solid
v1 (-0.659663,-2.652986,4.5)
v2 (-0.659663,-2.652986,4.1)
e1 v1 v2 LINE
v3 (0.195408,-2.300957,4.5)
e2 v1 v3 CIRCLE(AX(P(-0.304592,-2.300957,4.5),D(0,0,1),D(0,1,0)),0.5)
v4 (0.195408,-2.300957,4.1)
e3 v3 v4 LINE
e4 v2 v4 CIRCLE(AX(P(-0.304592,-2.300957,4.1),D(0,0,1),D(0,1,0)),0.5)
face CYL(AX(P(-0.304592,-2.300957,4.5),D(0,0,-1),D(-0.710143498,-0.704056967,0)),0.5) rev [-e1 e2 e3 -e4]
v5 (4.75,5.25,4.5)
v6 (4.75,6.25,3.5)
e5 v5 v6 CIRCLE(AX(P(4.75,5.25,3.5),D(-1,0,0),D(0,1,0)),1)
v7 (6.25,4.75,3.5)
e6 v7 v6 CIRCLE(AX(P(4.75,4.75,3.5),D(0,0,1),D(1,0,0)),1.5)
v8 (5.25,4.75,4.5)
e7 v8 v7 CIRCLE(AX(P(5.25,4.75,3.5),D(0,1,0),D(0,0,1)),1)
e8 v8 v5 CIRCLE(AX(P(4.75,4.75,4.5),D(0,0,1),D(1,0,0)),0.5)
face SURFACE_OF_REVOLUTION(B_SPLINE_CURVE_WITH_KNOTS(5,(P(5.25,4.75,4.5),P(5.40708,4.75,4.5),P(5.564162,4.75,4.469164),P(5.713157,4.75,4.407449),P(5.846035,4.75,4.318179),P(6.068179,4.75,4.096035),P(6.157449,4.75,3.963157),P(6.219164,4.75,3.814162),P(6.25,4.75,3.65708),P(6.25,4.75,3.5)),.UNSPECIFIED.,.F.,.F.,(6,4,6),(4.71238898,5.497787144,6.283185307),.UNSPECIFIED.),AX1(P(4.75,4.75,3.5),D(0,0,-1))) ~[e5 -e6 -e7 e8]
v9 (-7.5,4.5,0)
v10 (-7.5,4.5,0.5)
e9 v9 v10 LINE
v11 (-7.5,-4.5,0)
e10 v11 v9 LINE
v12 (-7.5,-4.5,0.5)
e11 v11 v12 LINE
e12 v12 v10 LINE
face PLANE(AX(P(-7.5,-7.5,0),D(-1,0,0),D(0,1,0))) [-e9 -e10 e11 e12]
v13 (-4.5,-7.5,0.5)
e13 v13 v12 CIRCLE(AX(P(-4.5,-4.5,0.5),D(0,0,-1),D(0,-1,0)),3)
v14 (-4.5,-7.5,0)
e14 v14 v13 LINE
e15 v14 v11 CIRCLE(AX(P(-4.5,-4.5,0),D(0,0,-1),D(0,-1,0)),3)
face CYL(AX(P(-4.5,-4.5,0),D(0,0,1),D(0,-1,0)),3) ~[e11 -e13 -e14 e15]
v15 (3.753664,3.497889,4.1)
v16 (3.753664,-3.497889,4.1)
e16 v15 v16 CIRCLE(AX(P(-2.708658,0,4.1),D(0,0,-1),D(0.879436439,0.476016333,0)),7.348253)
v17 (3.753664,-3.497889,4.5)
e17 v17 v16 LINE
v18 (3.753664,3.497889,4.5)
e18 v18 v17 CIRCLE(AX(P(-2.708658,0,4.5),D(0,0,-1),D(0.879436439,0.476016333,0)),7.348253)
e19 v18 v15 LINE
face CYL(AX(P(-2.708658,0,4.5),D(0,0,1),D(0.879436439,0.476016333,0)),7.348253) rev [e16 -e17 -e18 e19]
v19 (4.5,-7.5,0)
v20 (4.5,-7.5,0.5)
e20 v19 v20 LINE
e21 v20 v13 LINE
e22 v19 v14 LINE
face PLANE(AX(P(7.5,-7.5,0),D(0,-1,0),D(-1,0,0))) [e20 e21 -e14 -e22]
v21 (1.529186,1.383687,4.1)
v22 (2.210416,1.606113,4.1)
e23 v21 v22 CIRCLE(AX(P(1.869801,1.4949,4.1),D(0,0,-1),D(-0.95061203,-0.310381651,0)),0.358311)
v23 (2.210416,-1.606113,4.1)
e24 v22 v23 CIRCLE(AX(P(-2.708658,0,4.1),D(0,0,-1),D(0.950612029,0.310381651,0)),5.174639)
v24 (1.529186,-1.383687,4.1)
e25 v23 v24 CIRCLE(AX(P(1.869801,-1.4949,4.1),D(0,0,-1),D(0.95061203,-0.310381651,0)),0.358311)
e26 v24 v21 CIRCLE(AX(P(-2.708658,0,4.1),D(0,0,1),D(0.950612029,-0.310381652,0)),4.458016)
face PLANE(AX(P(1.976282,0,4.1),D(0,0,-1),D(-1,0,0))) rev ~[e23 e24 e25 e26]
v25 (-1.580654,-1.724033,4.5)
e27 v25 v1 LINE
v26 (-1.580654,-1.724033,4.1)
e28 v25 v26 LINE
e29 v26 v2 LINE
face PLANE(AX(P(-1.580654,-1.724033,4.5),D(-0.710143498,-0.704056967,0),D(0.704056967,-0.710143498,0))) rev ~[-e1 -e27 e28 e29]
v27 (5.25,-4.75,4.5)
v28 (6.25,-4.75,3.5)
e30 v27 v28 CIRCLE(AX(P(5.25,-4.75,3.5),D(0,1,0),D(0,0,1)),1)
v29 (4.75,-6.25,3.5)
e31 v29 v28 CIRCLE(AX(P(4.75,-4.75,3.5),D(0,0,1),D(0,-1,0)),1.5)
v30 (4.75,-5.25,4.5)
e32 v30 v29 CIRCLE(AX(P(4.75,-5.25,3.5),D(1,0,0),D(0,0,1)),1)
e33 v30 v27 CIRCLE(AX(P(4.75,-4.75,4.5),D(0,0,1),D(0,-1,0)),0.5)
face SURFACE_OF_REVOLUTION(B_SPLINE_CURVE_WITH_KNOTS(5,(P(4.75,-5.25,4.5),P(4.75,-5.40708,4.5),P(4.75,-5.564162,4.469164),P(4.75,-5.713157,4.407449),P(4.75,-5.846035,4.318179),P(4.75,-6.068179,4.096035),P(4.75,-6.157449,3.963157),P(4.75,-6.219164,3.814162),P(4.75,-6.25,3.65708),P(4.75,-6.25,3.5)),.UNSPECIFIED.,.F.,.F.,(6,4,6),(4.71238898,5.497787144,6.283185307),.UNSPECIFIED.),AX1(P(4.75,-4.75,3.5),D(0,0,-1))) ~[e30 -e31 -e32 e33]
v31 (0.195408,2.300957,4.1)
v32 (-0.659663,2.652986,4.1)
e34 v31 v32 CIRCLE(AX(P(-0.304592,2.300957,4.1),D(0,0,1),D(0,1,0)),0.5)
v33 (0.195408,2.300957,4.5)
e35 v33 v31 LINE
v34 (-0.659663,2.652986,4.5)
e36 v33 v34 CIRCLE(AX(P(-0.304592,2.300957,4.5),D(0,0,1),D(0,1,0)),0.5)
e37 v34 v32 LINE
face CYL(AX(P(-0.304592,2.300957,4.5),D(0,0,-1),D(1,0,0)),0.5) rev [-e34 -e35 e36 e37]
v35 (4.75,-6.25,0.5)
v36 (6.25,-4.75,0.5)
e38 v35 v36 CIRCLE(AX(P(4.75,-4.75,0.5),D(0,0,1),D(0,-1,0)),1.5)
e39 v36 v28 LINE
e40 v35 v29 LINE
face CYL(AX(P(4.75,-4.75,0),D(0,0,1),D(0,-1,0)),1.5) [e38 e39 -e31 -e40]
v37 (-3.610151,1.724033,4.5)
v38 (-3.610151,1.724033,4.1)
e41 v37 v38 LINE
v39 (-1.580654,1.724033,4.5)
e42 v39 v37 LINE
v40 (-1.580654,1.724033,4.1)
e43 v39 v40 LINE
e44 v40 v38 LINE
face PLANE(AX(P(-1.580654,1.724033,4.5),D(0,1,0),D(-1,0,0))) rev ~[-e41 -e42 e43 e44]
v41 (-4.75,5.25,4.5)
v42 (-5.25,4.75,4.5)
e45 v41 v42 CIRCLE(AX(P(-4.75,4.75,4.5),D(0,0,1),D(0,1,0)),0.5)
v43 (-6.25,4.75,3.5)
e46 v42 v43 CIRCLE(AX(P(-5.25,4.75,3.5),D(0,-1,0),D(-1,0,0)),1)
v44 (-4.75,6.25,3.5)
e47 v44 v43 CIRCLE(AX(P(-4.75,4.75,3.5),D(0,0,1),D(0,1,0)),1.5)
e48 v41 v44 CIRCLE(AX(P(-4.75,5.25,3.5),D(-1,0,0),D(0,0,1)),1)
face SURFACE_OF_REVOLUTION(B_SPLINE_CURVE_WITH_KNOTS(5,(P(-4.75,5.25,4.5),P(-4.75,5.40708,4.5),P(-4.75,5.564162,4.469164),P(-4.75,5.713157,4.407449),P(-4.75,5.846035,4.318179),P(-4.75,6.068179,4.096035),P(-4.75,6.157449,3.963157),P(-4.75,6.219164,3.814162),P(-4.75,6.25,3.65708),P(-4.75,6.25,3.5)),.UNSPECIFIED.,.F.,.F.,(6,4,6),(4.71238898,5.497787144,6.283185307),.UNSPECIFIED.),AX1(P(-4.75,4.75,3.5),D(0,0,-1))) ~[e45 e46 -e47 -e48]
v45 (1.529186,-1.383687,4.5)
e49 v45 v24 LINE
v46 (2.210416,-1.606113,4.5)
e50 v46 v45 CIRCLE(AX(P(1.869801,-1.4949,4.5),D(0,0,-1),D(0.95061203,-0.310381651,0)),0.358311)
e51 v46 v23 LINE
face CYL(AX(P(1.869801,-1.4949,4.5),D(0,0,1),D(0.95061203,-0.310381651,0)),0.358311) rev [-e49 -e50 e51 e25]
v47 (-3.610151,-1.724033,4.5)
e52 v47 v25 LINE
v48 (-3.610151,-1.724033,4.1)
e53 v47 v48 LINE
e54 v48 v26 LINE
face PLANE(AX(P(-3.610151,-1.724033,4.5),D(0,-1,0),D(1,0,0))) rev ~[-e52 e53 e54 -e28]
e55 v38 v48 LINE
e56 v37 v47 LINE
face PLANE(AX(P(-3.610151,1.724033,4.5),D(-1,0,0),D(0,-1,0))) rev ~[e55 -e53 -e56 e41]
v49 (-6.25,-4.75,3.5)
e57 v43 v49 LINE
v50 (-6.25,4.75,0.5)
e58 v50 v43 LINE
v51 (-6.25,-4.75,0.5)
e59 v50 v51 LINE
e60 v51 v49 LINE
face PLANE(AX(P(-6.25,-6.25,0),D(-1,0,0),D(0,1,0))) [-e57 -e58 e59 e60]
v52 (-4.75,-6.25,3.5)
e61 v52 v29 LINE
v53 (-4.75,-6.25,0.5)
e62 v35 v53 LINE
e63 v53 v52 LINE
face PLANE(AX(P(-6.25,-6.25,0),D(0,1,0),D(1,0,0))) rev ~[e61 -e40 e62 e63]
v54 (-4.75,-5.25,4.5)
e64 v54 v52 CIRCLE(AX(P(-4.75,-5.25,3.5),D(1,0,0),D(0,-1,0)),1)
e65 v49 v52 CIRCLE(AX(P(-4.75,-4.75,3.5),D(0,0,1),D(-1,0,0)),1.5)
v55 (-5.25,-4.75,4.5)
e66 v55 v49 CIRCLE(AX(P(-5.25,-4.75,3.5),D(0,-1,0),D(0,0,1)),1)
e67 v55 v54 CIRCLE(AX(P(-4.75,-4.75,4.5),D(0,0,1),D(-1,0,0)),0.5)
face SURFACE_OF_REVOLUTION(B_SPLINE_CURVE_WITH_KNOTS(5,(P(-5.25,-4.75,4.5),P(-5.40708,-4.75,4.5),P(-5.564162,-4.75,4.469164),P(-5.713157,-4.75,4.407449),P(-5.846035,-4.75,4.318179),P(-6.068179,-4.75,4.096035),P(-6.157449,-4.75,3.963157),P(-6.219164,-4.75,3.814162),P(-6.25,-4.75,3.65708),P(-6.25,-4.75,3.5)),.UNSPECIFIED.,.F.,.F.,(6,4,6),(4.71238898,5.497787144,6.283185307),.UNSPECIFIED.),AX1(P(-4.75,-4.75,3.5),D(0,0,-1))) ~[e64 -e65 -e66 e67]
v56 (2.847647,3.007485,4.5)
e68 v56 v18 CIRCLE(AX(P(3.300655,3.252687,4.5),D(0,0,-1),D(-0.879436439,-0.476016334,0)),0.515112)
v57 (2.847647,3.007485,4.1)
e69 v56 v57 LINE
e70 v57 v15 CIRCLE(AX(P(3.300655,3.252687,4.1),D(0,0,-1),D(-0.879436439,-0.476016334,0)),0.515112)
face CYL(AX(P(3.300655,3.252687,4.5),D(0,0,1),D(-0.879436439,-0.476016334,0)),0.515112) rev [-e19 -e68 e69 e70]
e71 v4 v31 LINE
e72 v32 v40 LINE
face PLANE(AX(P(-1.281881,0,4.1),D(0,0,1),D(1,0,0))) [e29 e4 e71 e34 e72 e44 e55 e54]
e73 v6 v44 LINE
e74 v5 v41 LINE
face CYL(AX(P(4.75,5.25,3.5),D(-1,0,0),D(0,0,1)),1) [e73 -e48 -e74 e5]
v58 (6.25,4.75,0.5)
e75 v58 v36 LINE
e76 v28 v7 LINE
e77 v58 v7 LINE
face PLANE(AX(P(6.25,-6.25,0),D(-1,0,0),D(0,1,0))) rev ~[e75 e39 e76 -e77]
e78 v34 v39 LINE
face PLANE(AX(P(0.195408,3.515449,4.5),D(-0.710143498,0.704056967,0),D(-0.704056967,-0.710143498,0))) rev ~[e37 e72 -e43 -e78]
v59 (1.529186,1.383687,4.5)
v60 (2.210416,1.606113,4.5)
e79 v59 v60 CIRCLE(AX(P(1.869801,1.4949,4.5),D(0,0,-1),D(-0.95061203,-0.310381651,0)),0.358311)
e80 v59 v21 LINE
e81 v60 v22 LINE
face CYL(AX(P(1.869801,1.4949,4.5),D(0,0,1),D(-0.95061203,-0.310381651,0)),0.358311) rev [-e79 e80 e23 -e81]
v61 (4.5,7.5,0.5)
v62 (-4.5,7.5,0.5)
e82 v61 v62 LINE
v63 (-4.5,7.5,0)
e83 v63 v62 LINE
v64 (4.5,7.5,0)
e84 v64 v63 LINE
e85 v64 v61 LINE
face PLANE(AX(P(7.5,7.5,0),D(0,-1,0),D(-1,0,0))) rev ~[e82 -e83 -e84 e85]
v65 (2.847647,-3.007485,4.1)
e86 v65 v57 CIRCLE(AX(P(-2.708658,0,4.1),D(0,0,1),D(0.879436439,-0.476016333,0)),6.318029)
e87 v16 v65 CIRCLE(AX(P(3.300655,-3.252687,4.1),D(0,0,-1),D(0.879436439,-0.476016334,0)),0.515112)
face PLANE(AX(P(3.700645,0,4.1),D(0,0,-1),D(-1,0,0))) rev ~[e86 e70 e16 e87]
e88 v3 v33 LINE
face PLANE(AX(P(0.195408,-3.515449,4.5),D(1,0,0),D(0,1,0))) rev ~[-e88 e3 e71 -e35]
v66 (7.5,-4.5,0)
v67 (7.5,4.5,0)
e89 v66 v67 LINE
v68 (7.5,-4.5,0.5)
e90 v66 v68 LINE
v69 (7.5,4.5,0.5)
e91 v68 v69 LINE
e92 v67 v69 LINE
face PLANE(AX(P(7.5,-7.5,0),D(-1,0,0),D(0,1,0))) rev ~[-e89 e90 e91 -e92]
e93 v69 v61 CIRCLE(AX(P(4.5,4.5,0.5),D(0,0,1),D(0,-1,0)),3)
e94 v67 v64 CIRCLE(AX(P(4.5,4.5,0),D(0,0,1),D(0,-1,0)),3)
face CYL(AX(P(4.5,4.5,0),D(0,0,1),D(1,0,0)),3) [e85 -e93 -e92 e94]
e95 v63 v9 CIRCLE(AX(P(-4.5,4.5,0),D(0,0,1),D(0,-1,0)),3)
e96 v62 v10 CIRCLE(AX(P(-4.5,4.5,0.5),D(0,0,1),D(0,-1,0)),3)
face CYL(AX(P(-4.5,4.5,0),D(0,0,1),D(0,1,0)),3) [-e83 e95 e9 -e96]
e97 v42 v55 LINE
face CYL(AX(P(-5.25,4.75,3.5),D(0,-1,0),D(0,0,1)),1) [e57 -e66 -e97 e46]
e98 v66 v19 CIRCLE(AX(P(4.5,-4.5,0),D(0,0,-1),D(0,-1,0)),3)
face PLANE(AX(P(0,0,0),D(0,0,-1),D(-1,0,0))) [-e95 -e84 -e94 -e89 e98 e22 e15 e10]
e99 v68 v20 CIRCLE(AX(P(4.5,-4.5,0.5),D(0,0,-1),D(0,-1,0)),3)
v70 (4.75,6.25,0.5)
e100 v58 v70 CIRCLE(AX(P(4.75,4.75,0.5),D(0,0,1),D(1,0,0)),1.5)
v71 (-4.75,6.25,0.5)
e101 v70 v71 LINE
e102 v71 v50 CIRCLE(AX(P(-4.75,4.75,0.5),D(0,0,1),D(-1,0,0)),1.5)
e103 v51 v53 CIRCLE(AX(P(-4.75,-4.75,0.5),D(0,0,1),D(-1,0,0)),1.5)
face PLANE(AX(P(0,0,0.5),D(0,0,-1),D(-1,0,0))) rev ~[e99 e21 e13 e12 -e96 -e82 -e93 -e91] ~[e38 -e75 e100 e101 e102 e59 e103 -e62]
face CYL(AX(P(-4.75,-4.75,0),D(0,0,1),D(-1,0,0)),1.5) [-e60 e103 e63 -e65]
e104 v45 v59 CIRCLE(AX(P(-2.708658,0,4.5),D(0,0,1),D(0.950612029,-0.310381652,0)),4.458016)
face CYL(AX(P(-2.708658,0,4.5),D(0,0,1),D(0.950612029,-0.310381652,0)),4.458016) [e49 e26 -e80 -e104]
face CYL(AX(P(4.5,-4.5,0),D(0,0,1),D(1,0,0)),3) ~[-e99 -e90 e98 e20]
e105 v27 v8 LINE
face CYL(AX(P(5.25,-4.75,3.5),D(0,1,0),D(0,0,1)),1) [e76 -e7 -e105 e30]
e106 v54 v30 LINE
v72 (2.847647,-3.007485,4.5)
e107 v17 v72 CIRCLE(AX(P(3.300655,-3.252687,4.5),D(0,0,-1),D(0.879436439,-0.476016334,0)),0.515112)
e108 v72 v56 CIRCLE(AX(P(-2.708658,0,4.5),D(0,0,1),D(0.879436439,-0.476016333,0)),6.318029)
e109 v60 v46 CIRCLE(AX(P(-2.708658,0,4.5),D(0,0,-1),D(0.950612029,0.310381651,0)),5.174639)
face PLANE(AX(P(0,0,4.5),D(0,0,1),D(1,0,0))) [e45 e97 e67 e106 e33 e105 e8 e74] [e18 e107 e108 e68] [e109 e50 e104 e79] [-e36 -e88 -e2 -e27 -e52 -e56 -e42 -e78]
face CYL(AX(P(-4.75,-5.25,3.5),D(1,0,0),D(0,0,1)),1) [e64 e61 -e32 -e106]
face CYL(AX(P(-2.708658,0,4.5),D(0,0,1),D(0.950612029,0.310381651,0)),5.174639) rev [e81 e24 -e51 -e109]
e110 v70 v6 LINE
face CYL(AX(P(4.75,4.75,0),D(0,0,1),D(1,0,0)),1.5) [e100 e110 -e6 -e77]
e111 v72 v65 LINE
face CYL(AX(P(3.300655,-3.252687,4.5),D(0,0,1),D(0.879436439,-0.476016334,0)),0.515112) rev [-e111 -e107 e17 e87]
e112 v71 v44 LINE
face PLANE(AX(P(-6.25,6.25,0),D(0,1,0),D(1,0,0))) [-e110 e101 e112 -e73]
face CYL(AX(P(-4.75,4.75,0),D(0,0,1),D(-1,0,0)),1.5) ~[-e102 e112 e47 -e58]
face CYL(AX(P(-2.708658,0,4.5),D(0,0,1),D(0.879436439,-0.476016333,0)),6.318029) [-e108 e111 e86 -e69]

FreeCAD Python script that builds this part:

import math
import FreeCAD as App
import Part
import Sketcher

V = App.Vector
Q = App.Units.Quantity


def edges_at(feature, points):
    """Names of the edges that pass closest to the given points."""
    edges = feature.Shape.Edges
    near = lambda p: min(range(len(edges)), key=lambda i: edges[i].distToShape(Part.Vertex(*p))[0])
    return sorted({f"Edge{near(p) + 1}" for p in points})


def add_polygon(sketch, points):
    """Adds a closed chain of lines whose ends are joined by coincident constraints."""
    first, n = sketch.GeometryCount, len(points)
    for a, b in zip(points, points[1:] + points[:1]):
        sketch.addGeometry(Part.LineSegment(App.Vector(*a, 0), App.Vector(*b, 0)), False)
    for i in range(n):
        sketch.addConstraint(Sketcher.Constraint("Coincident", first + i, 2, first + (i + 1) % n, 1))

doc = App.newDocument("Part")
body = doc.addObject("PartDesign::Body", "Body")

# Sketch on XY plane
sketch1 = body.newObject("Sketcher::SketchObject", "Sketch")
sketch1.AttachmentSupport = (doc.getObject("XY_Plane"), [""])
sketch1.MapMode = "FlatFace"
add_polygon(sketch1, [(-6.25, 6.25), (-6.25, -6.25), (6.25, -6.25), (6.25, 6.25)])  # lines 0-3
sketch1.addConstraint(Sketcher.Constraint("Vertical", 0))
sketch1.addConstraint(Sketcher.Constraint("Horizontal", 1))
sketch1.addConstraint(Sketcher.Constraint("Vertical", 2))
sketch1.addConstraint(Sketcher.Constraint("Horizontal", 3))
sketch1.addConstraint(Sketcher.Constraint("Symmetric", 0, 2, 2, 2, -1, 1))
sketch1.addConstraint(Sketcher.Constraint("Equal", 3, 0))
sketch1.addConstraint(Sketcher.Constraint("DistanceX", 1, 1, 1, 2, Q("12.5 mm")))
pad1 = body.newObject("PartDesign::Pad", "Pad")
pad1.Profile = sketch1
pad1.Length = 4.5
doc.recompute()

fillet = body.newObject("PartDesign::Fillet", "Fillet")
fillet.Base = (pad1, edges_at(pad1, [
    (-6.25, 6.25, 2.25),
    (6.25, 6.25, 2.25),
    (6.25, -6.25, 2.25),
    (-6.25, -6.25, 2.25),
]))
fillet.Radius = 1.5
doc.recompute()

fillet2 = body.newObject("PartDesign::Fillet", "Fillet001")
fillet2.Base = (fillet, edges_at(fillet, [
    (6.25, 0, 4.5),
    (0, -6.25, 4.5),
    (-6.25, 0, 4.5),
    (0, 6.25, 4.5),
    (-5.811, -5.811, 4.5),
    (-5.811, 5.811, 4.5),
    (5.811, 5.811, 4.5),
    (5.811, -5.811, 4.5),
]))
fillet2.Radius = 1

# Sketch on XY plane
sketch2 = body.newObject("Sketcher::SketchObject", "Sketch001")
sketch2.AttachmentSupport = (doc.getObject("XY_Plane"), [""])
sketch2.MapMode = "FlatFace"
add_polygon(sketch2, [(7.5, 7.5), (7.5, -7.5), (-7.5, -7.5), (-7.5, 7.5)])  # lines 0-3
sketch2.addConstraint(Sketcher.Constraint("Vertical", 0))
sketch2.addConstraint(Sketcher.Constraint("Horizontal", 1))
sketch2.addConstraint(Sketcher.Constraint("Vertical", 2))
sketch2.addConstraint(Sketcher.Constraint("Horizontal", 3))
sketch2.addConstraint(Sketcher.Constraint("Symmetric", 0, 2, 2, 2, -1, 1))
sketch2.addConstraint(Sketcher.Constraint("Equal", 3, 0))
sketch2.addConstraint(Sketcher.Constraint("DistanceX", 1, 2, 1, 1, Q("15 mm")))
pad2 = body.newObject("PartDesign::Pad", "Pad001")
pad2.Profile = sketch2
pad2.Length = 0.5
doc.recompute()

fillet3 = body.newObject("PartDesign::Fillet", "Fillet002")
fillet3.Base = (pad2, edges_at(pad2, [
    (7.5, -7.5, 0.25),
    (7.5, 7.5, 0.25),
    (-7.5, 7.5, 0.25),
    (-7.5, -7.5, 0.25),
]))
fillet3.Radius = 3

# Sketch on XY plane
sketch3 = body.newObject("Sketcher::SketchObject", "Sketch002")
sketch3.AttachmentSupport = (doc.getObject("XY_Plane"), [""])
sketch3.MapMode = "FlatFace"
sketch3.AttachmentOffset = App.Placement(V(0, 0, 4.5), App.Rotation())
add_polygon(sketch3, [(-3.610151, 1.724033), (-3.610151, -1.724033), (-1.580654, -1.724033), (0.195408, -3.515449), (0.195408, 3.515449), (-1.580654, 1.724033)])  # lines 0-5
sketch3.addGeometry(Part.ArcOfCircle(Part.Circle(V(-2.708658, 0, 0), V(0, 0, 1), 4.458016), math.radians(-18.082232), math.radians(18.082232)), False)  # 6
sketch3.addGeometry(Part.ArcOfCircle(Part.Circle(V(1.869801, -1.4949, 0), V(0, 0, 1), 0.358311), math.radians(161.917768), math.radians(341.917768)), False)  # 7
sketch3.addGeometry(Part.ArcOfCircle(Part.Circle(V(-2.708658, 0, 0), V(0, 0, 1), 5.174639), math.radians(-18.082232), math.radians(18.082232)), False)  # 8
sketch3.addGeometry(Part.ArcOfCircle(Part.Circle(V(1.869801, 1.4949, 0), V(0, 0, 1), 0.358311), math.radians(18.082232), math.radians(198.082232)), False)  # 9
sketch3.addGeometry(Part.ArcOfCircle(Part.Circle(V(-2.708658, 0, 0), V(0, 0, 1), 6.318029), math.radians(-28.425544), math.radians(28.425544)), False)  # 10
sketch3.addGeometry(Part.ArcOfCircle(Part.Circle(V(3.300655, -3.252687, 0), V(0, 0, 1), 0.515112), math.radians(151.574456), math.radians(331.574456)), False)  # 11
sketch3.addGeometry(Part.ArcOfCircle(Part.Circle(V(-2.708658, 0, 0), V(0, 0, 1), 7.348253), math.radians(-28.425544), math.radians(28.425544)), False)  # 12
sketch3.addGeometry(Part.ArcOfCircle(Part.Circle(V(3.300655, 3.252687, 0), V(0, 0, 1), 0.515112), math.radians(28.425544), math.radians(208.425544)), False)  # 13
sketch3.addConstraint(Sketcher.Constraint("Tangent", 6, 1, 7, 1))
sketch3.addConstraint(Sketcher.Constraint("Tangent", 7, 2, 8, 1))
sketch3.addConstraint(Sketcher.Constraint("Tangent", 8, 2, 9, 1))
sketch3.addConstraint(Sketcher.Constraint("Tangent", 9, 2, 6, 2))
sketch3.addConstraint(Sketcher.Constraint("Tangent", 10, 1, 11, 1))
sketch3.addConstraint(Sketcher.Constraint("Tangent", 11, 2, 12, 1))
sketch3.addConstraint(Sketcher.Constraint("Tangent", 12, 2, 13, 1))
sketch3.addConstraint(Sketcher.Constraint("Tangent", 13, 2, 10, 2))
sketch3.addConstraint(Sketcher.Constraint("Vertical", 0))
sketch3.addConstraint(Sketcher.Constraint("Horizontal", 1))
sketch3.addConstraint(Sketcher.Constraint("Vertical", 3))
sketch3.addConstraint(Sketcher.Constraint("Horizontal", 5))
sketch3.addConstraint(Sketcher.Constraint("Coincident", 8, 3, 6, 3))
sketch3.addConstraint(Sketcher.Constraint("Coincident", 10, 3, 6, 3))
sketch3.addConstraint(Sketcher.Constraint("Coincident", 12, 3, 6, 3))
sketch3.addConstraint(Sketcher.Constraint("Symmetric", 7, 3, 9, 3, -1))
sketch3.addConstraint(Sketcher.Constraint("Symmetric", 1, 2, 4, 2, -1))
sketch3.addConstraint(Sketcher.Constraint("Vertical", 11, 3, 13, 3))
sketch3.addConstraint(Sketcher.Constraint("Equal", 2, 4))
sketch3.addConstraint(Sketcher.Constraint("Radius", 7, Q("0.358311 mm")))
sketch3.addConstraint(Sketcher.Constraint("Radius", 8, Q("5.174639 mm")))
sketch3.addConstraint(Sketcher.Constraint("Radius", 10, Q("6.318029 mm")))
sketch3.addConstraint(Sketcher.Constraint("DistanceY", 3, 1, 3, 2, Q("7.030899 mm")))
sketch3.addConstraint(Sketcher.Constraint("Radius", 11, Q("0.515112 mm")))
sketch3.addConstraint(Sketcher.Constraint("DistanceY", 11, 3, 6, 1, Q("1.869 mm")))
sketch3.addConstraint(Sketcher.Constraint("DistanceX", -1, 1, 7, 3, Q("1.869801 mm")))
sketch3.addConstraint(Sketcher.Constraint("DistanceY", 7, 3, -1, 1, Q("1.4949 mm")))
sketch3.addConstraint(Sketcher.Constraint("Distance", 2, Q("2.522612 mm")))
sketch3.addConstraint(Sketcher.Constraint("DistanceX", 1, 1, 1, 2, Q("2.029497 mm")))
sketch3.addConstraint(Sketcher.Constraint("DistanceY", 0, 2, 0, 1, Q("3.448066 mm")))
sketch3.addConstraint(Sketcher.Constraint("DistanceX", 0, 2, -1, 1, Q("3.610151 mm")))
pocket1 = body.newObject("PartDesign::Pocket", "Pocket")
pocket1.Profile = sketch3
pocket1.Length = 0.4
doc.recompute()

fillet4 = body.newObject("PartDesign::Fillet", "Fillet003")
fillet4.Base = (pocket1, edges_at(pocket1, [(0.195, 3.515, 4.3), (0.195, -3.515, 4.3)]))
fillet4.Radius = 0.5

doc.recompute()
